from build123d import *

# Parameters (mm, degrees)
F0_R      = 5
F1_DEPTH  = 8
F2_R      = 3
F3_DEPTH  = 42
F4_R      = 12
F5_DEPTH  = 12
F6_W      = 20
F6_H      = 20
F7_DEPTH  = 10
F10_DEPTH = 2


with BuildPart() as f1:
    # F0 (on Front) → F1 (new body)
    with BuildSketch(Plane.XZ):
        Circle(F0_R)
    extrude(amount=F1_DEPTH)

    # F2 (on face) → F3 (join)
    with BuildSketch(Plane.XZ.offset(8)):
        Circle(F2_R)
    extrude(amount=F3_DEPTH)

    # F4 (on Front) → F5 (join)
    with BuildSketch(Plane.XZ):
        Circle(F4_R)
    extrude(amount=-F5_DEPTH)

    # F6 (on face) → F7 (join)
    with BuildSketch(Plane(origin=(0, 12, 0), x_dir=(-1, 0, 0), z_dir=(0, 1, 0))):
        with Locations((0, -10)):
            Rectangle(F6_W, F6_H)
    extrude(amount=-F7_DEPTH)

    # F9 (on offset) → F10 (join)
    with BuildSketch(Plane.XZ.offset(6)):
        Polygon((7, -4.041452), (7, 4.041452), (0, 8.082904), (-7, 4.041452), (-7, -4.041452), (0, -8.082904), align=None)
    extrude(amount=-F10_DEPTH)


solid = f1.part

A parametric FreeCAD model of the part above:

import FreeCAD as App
import Part
import Sketcher
Q = App.Units.Quantity


def add_polygon(sketch, points):
    """Adds a closed chain of lines whose ends are joined by coincident constraints."""
    first, n = sketch.GeometryCount, len(points)
    for a, b in zip(points, points[1:] + points[:1]):
        sketch.addGeometry(Part.LineSegment(App.Vector(*a, 0), App.Vector(*b, 0)), False)
    for i in range(n):
        sketch.addConstraint(Sketcher.Constraint("Coincident", first + i, 2, first + (i + 1) % n, 1))

doc = App.newDocument("Part")
params = doc.addObject("Spreadsheet::Sheet", "Params")
for row, (alias, value) in enumerate([
    ("sketch1_diameter", "10 mm"),
    ("pad1_length", "8 mm"),
    ("sketch2_diameter", "6 mm"),
    ("pad2_length", "42 mm"),
    ("sketch3_diameter", "24 mm"),
    ("pad3_length", "12 mm"),
    ("sketch4_width", "20 mm"),
    ("pad4_length", "10 mm"),
    ("pad5_length", "2 mm"),
], start=1):
    params.set(f"A{row}", alias)
    params.set(f"B{row}", "=" + value)
    params.setAlias(f"B{row}", alias)

body = doc.addObject("PartDesign::Body", "Body")

sketch1 = body.newObject("Sketcher::SketchObject", "Sketch")
sketch1.AttachmentSupport = (doc.getObject("XZ_Plane"), [""])
sketch1.MapMode = "FlatFace"
sketch1.addGeometry(Part.Circle(App.Vector(0, 0, 0), App.Vector(0, 0, 1), 5), False)
sketch1.addConstraint([
    Sketcher.Constraint("Coincident", 0, 3, -1, 1),
    Sketcher.Constraint("Diameter", 0, Q("10 mm")),
])
sketch1.setExpression("Constraints[1]", "Params.sketch1_diameter")
pad1 = body.newObject("PartDesign::Pad", "Pad")
pad1.Profile = sketch1
pad1.setExpression("Length", "Params.pad1_length")

sketch2 = body.newObject("Sketcher::SketchObject", "Sketch001")
sketch2.AttachmentSupport = (doc.getObject("XZ_Plane"), [""])
sketch2.MapMode = "FlatFace"
sketch2.AttachmentOffset = App.Placement(App.Vector(0, 0, 8), App.Rotation())
sketch2.addGeometry(Part.Circle(App.Vector(0, 0, 0), App.Vector(0, 0, 1), 3), False)
sketch2.addConstraint([
    Sketcher.Constraint("Coincident", 0, 3, -1, 1),
    Sketcher.Constraint("Diameter", 0, Q("6 mm")),
])
sketch2.setExpression("Constraints[1]", "Params.sketch2_diameter")
pad2 = body.newObject("PartDesign::Pad", "Pad001")
pad2.Profile = sketch2
pad2.setExpression("Length", "Params.pad2_length")

sketch3 = body.newObject("Sketcher::SketchObject", "Sketch002")
sketch3.AttachmentSupport = (doc.getObject("XZ_Plane"), [""])
sketch3.MapMode = "FlatFace"
sketch3.addGeometry(Part.Circle(App.Vector(0, 0, 0), App.Vector(0, 0, 1), 12), False)
sketch3.addConstraint([
    Sketcher.Constraint("Coincident", 0, 3, -1, 1),
    Sketcher.Constraint("Diameter", 0, Q("24 mm")),
])
sketch3.setExpression("Constraints[1]", "Params.sketch3_diameter")
pad3 = body.newObject("PartDesign::Pad", "Pad002")
pad3.Profile = sketch3
pad3.setExpression("Length", "Params.pad3_length")
pad3.Reversed = True

sketch4 = body.newObject("Sketcher::SketchObject", "Sketch003")
sketch4.AttachmentSupport = (doc.getObject("XZ_Plane"), [""])
sketch4.MapMode = "FlatFace"
sketch4.AttachmentOffset = App.Placement(App.Vector(0, 0, -12), App.Rotation())
add_polygon(sketch4, [(10, 0), (10, -20), (-10, -20), (-10, 0)])
sketch4.addConstraint([
    Sketcher.Constraint("Vertical", 0),
    Sketcher.Constraint("Horizontal", 1),
    Sketcher.Constraint("Vertical", 2),
    Sketcher.Constraint("Horizontal", 3),
    Sketcher.Constraint("Symmetric", 2, 2, 3, 2, -1, 1),
    Sketcher.Constraint("Equal", 3, 0),
    Sketcher.Constraint("DistanceX", 1, 2, 1, 1, Q("20 mm")),
])
sketch4.setExpression("Constraints[10]", "Params.sketch4_width")
pad4 = body.newObject("PartDesign::Pad", "Pad003")
pad4.Profile = sketch4
pad4.setExpression("Length", "Params.pad4_length")

sketch5 = body.newObject("Sketcher::SketchObject", "Sketch004")
sketch5.AttachmentSupport = (doc.getObject("XZ_Plane"), [""])
sketch5.MapMode = "FlatFace"
sketch5.AttachmentOffset = App.Placement(App.Vector(0, 0, 6), App.Rotation())
add_polygon(sketch5, [(7, -4), (7, 4), (0, 8), (-7, 4), (-7, -4), (0, -8)])
sketch5.addConstraint([
    Sketcher.Constraint("Vertical", 0),
    Sketcher.Constraint("Vertical", 3),
    Sketcher.Constraint("Symmetric", 0, 2, 3, 2, -1, 1),
    Sketcher.Constraint("Symmetric", 1, 2, 4, 2, -1, 1),
    Sketcher.Constraint("PointOnObject", 1, 2, -2),
    Sketcher.Constraint("Parallel", 2, 5),
    Sketcher.Constraint("Horizontal", 0, 2, 2, 2),
    Sketcher.Constraint("Angle", 1, Q("149.999999 deg")),
    Sketcher.Constraint("DistanceX", -1, 1, 0, 2, Q("7 mm")),
    Sketcher.Constraint("DistanceY", 0, 1, 0, 2, Q("8.082904 mm")),
])
pad5 = body.newObject("PartDesign::Pad", "Pad004")
pad5.Profile = sketch5
pad5.setExpression("Length", "Params.pad5_length")
pad5.Reversed = True

doc.recompute()
